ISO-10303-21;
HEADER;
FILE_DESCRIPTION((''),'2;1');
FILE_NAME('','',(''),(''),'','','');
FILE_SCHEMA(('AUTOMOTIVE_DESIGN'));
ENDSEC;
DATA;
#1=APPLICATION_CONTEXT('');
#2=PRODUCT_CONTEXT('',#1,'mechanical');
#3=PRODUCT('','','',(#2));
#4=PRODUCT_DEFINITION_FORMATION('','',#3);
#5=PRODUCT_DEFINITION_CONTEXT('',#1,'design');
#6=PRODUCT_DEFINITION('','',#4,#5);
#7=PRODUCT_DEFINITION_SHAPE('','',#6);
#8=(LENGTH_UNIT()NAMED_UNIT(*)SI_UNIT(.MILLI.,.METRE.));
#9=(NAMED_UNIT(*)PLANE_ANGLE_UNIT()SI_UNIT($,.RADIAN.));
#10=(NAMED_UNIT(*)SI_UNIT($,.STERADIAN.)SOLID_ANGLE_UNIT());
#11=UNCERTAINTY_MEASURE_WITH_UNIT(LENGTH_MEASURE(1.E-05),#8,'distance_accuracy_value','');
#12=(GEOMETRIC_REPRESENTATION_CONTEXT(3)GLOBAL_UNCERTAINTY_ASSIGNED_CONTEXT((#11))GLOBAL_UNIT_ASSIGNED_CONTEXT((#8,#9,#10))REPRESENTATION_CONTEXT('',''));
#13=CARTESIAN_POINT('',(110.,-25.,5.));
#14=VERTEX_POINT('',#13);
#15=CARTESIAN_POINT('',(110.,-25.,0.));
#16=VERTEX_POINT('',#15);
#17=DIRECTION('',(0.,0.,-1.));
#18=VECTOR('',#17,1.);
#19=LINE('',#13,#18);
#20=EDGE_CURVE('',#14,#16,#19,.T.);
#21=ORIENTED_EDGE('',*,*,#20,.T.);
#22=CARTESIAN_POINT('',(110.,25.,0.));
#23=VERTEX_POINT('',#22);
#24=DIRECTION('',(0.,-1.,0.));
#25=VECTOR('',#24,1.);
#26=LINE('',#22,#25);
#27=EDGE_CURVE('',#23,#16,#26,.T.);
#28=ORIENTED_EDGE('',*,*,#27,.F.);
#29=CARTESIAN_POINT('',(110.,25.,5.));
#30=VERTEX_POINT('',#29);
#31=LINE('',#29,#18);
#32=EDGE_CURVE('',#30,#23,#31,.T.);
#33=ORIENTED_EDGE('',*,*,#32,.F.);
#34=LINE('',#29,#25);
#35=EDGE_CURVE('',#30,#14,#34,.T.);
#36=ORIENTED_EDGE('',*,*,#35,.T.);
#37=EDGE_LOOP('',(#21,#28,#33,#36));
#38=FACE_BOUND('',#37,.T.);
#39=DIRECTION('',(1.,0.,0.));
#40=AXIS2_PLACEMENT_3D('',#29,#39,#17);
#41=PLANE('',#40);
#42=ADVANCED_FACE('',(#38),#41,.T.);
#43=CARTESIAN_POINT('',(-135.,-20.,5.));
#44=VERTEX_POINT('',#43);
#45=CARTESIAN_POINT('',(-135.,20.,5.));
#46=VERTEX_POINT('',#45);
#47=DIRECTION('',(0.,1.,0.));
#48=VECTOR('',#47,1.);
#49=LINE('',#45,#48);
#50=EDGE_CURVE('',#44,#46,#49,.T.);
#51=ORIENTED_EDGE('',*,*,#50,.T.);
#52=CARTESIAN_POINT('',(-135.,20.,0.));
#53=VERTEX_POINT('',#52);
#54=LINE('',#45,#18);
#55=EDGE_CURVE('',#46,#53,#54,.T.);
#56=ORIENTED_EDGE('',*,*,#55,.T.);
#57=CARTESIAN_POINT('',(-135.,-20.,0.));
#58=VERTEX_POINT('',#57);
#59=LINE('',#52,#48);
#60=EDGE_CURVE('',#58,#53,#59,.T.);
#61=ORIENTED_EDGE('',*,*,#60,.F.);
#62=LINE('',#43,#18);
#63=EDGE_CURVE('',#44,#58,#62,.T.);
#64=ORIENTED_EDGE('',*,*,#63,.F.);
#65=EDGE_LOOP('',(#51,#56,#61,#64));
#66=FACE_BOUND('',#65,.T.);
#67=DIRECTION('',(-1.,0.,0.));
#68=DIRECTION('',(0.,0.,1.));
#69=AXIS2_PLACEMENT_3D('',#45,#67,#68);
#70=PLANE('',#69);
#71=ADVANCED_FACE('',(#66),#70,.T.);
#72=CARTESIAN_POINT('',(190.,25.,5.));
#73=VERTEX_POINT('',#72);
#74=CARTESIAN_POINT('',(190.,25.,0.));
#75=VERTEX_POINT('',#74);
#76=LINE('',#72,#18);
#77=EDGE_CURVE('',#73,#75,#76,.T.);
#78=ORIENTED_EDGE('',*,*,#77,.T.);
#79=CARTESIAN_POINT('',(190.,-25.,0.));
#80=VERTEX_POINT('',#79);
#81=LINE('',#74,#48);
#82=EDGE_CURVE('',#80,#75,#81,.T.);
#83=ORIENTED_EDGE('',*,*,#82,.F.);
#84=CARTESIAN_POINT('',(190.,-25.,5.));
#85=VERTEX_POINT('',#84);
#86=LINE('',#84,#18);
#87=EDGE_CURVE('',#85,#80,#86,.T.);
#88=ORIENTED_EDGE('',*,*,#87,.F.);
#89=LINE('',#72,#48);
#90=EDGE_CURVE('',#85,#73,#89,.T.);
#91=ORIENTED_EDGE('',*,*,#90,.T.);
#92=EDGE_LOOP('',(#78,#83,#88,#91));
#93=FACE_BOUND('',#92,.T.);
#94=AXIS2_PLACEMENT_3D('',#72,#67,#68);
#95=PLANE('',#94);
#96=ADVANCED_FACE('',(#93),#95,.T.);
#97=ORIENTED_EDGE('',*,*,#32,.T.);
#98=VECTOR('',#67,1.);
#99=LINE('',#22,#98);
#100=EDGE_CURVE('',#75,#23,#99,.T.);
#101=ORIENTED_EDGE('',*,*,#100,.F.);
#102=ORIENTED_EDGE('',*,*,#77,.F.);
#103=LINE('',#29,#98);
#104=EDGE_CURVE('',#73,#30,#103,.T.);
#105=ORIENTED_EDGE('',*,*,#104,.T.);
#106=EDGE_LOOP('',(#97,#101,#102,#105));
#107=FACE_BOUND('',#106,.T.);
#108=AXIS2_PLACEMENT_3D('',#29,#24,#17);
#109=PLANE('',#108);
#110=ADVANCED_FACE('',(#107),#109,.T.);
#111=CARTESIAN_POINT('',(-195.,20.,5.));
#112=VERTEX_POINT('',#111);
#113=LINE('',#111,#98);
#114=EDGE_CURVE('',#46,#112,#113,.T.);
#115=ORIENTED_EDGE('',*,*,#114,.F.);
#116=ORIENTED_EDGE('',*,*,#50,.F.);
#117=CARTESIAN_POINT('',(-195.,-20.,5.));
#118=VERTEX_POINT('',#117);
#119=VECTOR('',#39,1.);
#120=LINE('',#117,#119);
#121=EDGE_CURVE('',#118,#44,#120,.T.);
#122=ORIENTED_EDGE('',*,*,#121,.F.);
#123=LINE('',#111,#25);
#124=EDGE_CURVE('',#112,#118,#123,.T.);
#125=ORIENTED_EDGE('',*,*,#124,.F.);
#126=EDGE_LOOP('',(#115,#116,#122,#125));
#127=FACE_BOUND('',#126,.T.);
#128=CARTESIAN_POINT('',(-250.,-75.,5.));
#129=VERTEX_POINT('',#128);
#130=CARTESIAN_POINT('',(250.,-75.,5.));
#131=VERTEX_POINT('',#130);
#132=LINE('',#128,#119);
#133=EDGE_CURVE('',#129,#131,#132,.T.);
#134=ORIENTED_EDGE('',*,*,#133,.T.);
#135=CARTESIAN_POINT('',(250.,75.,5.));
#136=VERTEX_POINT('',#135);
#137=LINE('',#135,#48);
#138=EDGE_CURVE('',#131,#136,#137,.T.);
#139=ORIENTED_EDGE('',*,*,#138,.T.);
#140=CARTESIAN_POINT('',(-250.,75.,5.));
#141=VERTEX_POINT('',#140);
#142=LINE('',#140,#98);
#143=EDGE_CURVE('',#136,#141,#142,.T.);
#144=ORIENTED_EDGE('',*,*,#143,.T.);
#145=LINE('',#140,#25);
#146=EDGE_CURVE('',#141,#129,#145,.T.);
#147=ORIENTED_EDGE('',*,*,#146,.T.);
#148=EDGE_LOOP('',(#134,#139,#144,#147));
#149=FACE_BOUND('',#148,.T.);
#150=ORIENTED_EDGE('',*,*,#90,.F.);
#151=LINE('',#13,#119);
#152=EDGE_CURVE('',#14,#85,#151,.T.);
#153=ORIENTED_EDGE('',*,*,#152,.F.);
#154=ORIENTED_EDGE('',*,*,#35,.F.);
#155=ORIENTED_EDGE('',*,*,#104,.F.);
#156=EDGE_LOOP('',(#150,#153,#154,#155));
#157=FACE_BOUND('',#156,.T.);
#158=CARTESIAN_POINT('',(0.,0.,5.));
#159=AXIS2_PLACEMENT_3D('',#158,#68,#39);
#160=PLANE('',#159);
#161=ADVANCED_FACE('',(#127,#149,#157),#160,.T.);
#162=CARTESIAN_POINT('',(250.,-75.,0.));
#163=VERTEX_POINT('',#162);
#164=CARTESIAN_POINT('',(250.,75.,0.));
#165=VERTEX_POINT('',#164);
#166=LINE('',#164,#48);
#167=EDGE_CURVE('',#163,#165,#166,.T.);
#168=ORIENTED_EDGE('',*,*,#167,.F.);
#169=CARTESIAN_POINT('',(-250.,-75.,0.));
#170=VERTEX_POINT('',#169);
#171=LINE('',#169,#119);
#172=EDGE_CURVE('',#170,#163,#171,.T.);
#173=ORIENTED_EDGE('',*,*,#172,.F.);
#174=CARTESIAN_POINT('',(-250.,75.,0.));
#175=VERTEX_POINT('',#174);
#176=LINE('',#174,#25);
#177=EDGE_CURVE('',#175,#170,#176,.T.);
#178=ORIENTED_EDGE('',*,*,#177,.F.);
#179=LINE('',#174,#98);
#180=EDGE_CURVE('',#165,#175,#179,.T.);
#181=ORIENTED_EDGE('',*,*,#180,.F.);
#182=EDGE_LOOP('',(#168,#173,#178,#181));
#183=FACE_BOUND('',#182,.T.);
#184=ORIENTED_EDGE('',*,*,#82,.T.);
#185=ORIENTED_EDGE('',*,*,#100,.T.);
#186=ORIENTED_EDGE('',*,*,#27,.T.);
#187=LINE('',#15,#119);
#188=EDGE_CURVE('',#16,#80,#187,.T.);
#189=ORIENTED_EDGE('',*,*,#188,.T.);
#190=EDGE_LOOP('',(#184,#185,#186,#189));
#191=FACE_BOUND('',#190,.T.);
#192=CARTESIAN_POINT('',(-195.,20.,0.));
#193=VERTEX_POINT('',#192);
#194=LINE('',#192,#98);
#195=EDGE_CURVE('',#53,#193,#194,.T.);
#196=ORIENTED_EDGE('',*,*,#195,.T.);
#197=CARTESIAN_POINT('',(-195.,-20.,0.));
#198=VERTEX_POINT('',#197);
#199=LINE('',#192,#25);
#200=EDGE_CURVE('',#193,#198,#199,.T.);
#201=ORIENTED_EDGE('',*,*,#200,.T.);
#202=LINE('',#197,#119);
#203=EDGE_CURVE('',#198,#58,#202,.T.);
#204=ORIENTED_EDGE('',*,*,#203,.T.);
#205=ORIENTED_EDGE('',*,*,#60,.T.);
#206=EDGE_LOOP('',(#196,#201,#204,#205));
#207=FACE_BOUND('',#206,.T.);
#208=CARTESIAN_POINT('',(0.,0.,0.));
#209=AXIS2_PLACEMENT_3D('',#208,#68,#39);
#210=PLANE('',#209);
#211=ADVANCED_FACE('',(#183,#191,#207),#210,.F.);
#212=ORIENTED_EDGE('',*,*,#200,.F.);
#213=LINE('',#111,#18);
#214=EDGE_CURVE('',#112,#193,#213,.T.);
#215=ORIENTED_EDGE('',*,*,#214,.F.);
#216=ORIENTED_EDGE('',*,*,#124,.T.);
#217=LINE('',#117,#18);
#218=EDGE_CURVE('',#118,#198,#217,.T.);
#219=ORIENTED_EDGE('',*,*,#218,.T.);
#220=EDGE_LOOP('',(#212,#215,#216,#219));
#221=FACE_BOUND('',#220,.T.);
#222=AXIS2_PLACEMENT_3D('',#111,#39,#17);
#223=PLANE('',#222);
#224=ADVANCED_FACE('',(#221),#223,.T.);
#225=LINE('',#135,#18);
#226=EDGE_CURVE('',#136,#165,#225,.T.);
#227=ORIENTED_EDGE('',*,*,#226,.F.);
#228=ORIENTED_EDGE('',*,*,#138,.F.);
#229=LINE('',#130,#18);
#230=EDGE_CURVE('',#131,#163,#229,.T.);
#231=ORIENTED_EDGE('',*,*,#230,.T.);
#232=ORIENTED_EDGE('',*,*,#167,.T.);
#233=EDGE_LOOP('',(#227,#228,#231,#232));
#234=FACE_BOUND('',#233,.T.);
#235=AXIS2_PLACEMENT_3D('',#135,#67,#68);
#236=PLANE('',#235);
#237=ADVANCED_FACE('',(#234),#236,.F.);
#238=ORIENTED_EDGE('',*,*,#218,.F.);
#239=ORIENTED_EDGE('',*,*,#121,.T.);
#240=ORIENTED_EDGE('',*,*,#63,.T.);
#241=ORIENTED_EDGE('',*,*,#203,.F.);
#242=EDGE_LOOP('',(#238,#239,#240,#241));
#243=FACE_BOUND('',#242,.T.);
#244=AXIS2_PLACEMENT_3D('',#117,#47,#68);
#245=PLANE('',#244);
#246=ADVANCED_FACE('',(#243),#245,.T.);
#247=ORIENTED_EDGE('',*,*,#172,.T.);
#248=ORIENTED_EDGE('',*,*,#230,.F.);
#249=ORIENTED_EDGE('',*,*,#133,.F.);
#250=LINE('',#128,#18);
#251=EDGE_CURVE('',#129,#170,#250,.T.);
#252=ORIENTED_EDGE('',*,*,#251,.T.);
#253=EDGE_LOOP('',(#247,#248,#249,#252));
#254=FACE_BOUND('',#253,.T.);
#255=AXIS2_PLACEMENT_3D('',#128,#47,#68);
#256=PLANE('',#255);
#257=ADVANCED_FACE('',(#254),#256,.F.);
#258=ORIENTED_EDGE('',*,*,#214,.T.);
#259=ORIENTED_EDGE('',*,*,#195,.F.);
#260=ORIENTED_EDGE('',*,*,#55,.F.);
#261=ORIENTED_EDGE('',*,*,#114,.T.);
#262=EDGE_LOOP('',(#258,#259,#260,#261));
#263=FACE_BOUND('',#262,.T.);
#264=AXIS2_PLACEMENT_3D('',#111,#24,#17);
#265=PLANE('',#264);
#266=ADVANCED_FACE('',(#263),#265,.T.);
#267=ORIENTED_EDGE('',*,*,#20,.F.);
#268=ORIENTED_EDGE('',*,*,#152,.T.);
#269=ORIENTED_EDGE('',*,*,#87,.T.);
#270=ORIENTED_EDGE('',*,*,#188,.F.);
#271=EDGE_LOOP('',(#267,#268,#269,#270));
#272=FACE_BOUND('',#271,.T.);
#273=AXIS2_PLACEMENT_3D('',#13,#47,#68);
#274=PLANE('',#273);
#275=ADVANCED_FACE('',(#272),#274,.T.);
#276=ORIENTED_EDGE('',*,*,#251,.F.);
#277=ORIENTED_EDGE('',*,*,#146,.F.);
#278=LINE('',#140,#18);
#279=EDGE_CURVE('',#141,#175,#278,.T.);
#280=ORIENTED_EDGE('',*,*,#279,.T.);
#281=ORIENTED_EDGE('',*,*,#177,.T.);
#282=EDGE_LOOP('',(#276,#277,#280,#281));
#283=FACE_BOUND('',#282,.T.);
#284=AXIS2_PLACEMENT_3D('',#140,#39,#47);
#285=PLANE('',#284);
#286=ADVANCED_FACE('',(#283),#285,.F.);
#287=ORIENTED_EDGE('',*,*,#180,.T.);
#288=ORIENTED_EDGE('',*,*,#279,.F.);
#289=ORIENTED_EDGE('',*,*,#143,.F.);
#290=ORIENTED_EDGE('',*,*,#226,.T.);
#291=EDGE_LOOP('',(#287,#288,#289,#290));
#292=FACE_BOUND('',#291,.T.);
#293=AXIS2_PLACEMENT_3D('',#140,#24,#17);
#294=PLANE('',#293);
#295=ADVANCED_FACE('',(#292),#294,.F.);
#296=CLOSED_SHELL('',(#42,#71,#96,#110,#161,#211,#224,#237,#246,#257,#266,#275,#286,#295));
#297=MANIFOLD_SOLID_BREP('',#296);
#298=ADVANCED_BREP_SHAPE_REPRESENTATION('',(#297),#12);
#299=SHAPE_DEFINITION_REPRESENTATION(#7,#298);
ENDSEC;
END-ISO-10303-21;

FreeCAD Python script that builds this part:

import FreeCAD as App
import Part
import Sketcher
from FreeCAD import Vector
Q = App.Units.Quantity


def add_polygon(sketch, points):
    """Adds a closed chain of lines whose ends are joined by coincident constraints."""
    first, n = sketch.GeometryCount, len(points)
    for a, b in zip(points, points[1:] + points[:1]):
        sketch.addGeometry(Part.LineSegment(App.Vector(*a, 0), App.Vector(*b, 0)), False)
    for i in range(n):
        sketch.addConstraint(Sketcher.Constraint("Coincident", first + i, 2, first + (i + 1) % n, 1))

doc = App.newDocument("Part")
params = doc.addObject("Spreadsheet::Sheet", "Params")
for row, (alias, value) in enumerate([
    ("sketch1_width", "500 mm"),
    ("sketch1_width2", "60 mm"),
    ("sketch1_width3", "80 mm"),
    ("sketch1_height", "150 mm"),
    ("sketch1_height2", "40 mm"),
    ("pad1_length", "5 mm"),
], start=1):
    params.set(f"A{row}", alias)
    params.set(f"B{row}", "=" + value)
    params.setAlias(f"B{row}", alias)

body = doc.addObject("PartDesign::Body", "Body")

sketch1 = body.newObject("Sketcher::SketchObject", "Sketch")
sketch1.AttachmentSupport = (doc.getObject("XY_Plane"), [""])
sketch1.MapMode = "FlatFace"
add_polygon(sketch1, [(-250, 75), (-250, -75), (250, -75), (250, 75)])
add_polygon(sketch1, [(-135, -20), (-195, -20), (-195, 20), (-135, 20)])
add_polygon(sketch1, [(190, -25), (110, -25), (110, 25), (190, 25)])
sketch1.addConstraint(Sketcher.Constraint("Vertical", 0))
sketch1.addConstraint(Sketcher.Constraint("Horizontal", 1))
sketch1.addConstraint(Sketcher.Constraint("Vertical", 2))
sketch1.addConstraint(Sketcher.Constraint("Horizontal", 3))
sketch1.addConstraint(Sketcher.Constraint("Horizontal", 4))
sketch1.addConstraint(Sketcher.Constraint("Vertical", 5))
sketch1.addConstraint(Sketcher.Constraint("Horizontal", 6))
sketch1.addConstraint(Sketcher.Constraint("Vertical", 7))
sketch1.addConstraint(Sketcher.Constraint("Horizontal", 8))
sketch1.addConstraint(Sketcher.Constraint("Vertical", 9))
sketch1.addConstraint(Sketcher.Constraint("Horizontal", 10))
sketch1.addConstraint(Sketcher.Constraint("Vertical", 11))
sketch1.addConstraint(Sketcher.Constraint("Symmetric", 0, 2, 2, 2, -1, 1))
sketch1.addConstraint(Sketcher.Constraint("DistanceX", 1, 1, 1, 2, Q("500 mm")))
sketch1.addConstraint(Sketcher.Constraint("DistanceX", 4, 2, 4, 1, Q("60 mm")))
sketch1.addConstraint(Sketcher.Constraint("DistanceX", 8, 2, 8, 1, Q("80 mm")))
sketch1.addConstraint(Sketcher.Constraint("DistanceY", 0, 2, 0, 1, Q("150 mm")))
sketch1.addConstraint(Sketcher.Constraint("DistanceY", 5, 1, 5, 2, Q("40 mm")))
sketch1.addConstraint(Sketcher.Constraint("DistanceY", 9, 1, 9, 2, Q("50 mm")))
sketch1.addConstraint(Sketcher.Constraint("DistanceX", 4, 2, -1, 1, Q("195 mm")))
sketch1.addConstraint(Sketcher.Constraint("DistanceY", 4, 2, -1, 1, Q("20 mm")))
sketch1.addConstraint(Sketcher.Constraint("DistanceX", -1, 1, 8, 2, Q("110 mm")))
sketch1.addConstraint(Sketcher.Constraint("DistanceY", 8, 2, -1, 1, Q("25 mm")))
sketch1.setExpression("Constraints[25]", "Params.sketch1_width")
sketch1.setExpression("Constraints[26]", "Params.sketch1_width2")
sketch1.setExpression("Constraints[27]", "Params.sketch1_width3")
sketch1.setExpression("Constraints[28]", "Params.sketch1_height")
sketch1.setExpression("Constraints[29]", "Params.sketch1_height2")
pad1 = body.newObject("PartDesign::Pad", "Pad")
pad1.Profile = sketch1
pad1.setExpression("Length", "Params.pad1_length")

doc.recompute()
